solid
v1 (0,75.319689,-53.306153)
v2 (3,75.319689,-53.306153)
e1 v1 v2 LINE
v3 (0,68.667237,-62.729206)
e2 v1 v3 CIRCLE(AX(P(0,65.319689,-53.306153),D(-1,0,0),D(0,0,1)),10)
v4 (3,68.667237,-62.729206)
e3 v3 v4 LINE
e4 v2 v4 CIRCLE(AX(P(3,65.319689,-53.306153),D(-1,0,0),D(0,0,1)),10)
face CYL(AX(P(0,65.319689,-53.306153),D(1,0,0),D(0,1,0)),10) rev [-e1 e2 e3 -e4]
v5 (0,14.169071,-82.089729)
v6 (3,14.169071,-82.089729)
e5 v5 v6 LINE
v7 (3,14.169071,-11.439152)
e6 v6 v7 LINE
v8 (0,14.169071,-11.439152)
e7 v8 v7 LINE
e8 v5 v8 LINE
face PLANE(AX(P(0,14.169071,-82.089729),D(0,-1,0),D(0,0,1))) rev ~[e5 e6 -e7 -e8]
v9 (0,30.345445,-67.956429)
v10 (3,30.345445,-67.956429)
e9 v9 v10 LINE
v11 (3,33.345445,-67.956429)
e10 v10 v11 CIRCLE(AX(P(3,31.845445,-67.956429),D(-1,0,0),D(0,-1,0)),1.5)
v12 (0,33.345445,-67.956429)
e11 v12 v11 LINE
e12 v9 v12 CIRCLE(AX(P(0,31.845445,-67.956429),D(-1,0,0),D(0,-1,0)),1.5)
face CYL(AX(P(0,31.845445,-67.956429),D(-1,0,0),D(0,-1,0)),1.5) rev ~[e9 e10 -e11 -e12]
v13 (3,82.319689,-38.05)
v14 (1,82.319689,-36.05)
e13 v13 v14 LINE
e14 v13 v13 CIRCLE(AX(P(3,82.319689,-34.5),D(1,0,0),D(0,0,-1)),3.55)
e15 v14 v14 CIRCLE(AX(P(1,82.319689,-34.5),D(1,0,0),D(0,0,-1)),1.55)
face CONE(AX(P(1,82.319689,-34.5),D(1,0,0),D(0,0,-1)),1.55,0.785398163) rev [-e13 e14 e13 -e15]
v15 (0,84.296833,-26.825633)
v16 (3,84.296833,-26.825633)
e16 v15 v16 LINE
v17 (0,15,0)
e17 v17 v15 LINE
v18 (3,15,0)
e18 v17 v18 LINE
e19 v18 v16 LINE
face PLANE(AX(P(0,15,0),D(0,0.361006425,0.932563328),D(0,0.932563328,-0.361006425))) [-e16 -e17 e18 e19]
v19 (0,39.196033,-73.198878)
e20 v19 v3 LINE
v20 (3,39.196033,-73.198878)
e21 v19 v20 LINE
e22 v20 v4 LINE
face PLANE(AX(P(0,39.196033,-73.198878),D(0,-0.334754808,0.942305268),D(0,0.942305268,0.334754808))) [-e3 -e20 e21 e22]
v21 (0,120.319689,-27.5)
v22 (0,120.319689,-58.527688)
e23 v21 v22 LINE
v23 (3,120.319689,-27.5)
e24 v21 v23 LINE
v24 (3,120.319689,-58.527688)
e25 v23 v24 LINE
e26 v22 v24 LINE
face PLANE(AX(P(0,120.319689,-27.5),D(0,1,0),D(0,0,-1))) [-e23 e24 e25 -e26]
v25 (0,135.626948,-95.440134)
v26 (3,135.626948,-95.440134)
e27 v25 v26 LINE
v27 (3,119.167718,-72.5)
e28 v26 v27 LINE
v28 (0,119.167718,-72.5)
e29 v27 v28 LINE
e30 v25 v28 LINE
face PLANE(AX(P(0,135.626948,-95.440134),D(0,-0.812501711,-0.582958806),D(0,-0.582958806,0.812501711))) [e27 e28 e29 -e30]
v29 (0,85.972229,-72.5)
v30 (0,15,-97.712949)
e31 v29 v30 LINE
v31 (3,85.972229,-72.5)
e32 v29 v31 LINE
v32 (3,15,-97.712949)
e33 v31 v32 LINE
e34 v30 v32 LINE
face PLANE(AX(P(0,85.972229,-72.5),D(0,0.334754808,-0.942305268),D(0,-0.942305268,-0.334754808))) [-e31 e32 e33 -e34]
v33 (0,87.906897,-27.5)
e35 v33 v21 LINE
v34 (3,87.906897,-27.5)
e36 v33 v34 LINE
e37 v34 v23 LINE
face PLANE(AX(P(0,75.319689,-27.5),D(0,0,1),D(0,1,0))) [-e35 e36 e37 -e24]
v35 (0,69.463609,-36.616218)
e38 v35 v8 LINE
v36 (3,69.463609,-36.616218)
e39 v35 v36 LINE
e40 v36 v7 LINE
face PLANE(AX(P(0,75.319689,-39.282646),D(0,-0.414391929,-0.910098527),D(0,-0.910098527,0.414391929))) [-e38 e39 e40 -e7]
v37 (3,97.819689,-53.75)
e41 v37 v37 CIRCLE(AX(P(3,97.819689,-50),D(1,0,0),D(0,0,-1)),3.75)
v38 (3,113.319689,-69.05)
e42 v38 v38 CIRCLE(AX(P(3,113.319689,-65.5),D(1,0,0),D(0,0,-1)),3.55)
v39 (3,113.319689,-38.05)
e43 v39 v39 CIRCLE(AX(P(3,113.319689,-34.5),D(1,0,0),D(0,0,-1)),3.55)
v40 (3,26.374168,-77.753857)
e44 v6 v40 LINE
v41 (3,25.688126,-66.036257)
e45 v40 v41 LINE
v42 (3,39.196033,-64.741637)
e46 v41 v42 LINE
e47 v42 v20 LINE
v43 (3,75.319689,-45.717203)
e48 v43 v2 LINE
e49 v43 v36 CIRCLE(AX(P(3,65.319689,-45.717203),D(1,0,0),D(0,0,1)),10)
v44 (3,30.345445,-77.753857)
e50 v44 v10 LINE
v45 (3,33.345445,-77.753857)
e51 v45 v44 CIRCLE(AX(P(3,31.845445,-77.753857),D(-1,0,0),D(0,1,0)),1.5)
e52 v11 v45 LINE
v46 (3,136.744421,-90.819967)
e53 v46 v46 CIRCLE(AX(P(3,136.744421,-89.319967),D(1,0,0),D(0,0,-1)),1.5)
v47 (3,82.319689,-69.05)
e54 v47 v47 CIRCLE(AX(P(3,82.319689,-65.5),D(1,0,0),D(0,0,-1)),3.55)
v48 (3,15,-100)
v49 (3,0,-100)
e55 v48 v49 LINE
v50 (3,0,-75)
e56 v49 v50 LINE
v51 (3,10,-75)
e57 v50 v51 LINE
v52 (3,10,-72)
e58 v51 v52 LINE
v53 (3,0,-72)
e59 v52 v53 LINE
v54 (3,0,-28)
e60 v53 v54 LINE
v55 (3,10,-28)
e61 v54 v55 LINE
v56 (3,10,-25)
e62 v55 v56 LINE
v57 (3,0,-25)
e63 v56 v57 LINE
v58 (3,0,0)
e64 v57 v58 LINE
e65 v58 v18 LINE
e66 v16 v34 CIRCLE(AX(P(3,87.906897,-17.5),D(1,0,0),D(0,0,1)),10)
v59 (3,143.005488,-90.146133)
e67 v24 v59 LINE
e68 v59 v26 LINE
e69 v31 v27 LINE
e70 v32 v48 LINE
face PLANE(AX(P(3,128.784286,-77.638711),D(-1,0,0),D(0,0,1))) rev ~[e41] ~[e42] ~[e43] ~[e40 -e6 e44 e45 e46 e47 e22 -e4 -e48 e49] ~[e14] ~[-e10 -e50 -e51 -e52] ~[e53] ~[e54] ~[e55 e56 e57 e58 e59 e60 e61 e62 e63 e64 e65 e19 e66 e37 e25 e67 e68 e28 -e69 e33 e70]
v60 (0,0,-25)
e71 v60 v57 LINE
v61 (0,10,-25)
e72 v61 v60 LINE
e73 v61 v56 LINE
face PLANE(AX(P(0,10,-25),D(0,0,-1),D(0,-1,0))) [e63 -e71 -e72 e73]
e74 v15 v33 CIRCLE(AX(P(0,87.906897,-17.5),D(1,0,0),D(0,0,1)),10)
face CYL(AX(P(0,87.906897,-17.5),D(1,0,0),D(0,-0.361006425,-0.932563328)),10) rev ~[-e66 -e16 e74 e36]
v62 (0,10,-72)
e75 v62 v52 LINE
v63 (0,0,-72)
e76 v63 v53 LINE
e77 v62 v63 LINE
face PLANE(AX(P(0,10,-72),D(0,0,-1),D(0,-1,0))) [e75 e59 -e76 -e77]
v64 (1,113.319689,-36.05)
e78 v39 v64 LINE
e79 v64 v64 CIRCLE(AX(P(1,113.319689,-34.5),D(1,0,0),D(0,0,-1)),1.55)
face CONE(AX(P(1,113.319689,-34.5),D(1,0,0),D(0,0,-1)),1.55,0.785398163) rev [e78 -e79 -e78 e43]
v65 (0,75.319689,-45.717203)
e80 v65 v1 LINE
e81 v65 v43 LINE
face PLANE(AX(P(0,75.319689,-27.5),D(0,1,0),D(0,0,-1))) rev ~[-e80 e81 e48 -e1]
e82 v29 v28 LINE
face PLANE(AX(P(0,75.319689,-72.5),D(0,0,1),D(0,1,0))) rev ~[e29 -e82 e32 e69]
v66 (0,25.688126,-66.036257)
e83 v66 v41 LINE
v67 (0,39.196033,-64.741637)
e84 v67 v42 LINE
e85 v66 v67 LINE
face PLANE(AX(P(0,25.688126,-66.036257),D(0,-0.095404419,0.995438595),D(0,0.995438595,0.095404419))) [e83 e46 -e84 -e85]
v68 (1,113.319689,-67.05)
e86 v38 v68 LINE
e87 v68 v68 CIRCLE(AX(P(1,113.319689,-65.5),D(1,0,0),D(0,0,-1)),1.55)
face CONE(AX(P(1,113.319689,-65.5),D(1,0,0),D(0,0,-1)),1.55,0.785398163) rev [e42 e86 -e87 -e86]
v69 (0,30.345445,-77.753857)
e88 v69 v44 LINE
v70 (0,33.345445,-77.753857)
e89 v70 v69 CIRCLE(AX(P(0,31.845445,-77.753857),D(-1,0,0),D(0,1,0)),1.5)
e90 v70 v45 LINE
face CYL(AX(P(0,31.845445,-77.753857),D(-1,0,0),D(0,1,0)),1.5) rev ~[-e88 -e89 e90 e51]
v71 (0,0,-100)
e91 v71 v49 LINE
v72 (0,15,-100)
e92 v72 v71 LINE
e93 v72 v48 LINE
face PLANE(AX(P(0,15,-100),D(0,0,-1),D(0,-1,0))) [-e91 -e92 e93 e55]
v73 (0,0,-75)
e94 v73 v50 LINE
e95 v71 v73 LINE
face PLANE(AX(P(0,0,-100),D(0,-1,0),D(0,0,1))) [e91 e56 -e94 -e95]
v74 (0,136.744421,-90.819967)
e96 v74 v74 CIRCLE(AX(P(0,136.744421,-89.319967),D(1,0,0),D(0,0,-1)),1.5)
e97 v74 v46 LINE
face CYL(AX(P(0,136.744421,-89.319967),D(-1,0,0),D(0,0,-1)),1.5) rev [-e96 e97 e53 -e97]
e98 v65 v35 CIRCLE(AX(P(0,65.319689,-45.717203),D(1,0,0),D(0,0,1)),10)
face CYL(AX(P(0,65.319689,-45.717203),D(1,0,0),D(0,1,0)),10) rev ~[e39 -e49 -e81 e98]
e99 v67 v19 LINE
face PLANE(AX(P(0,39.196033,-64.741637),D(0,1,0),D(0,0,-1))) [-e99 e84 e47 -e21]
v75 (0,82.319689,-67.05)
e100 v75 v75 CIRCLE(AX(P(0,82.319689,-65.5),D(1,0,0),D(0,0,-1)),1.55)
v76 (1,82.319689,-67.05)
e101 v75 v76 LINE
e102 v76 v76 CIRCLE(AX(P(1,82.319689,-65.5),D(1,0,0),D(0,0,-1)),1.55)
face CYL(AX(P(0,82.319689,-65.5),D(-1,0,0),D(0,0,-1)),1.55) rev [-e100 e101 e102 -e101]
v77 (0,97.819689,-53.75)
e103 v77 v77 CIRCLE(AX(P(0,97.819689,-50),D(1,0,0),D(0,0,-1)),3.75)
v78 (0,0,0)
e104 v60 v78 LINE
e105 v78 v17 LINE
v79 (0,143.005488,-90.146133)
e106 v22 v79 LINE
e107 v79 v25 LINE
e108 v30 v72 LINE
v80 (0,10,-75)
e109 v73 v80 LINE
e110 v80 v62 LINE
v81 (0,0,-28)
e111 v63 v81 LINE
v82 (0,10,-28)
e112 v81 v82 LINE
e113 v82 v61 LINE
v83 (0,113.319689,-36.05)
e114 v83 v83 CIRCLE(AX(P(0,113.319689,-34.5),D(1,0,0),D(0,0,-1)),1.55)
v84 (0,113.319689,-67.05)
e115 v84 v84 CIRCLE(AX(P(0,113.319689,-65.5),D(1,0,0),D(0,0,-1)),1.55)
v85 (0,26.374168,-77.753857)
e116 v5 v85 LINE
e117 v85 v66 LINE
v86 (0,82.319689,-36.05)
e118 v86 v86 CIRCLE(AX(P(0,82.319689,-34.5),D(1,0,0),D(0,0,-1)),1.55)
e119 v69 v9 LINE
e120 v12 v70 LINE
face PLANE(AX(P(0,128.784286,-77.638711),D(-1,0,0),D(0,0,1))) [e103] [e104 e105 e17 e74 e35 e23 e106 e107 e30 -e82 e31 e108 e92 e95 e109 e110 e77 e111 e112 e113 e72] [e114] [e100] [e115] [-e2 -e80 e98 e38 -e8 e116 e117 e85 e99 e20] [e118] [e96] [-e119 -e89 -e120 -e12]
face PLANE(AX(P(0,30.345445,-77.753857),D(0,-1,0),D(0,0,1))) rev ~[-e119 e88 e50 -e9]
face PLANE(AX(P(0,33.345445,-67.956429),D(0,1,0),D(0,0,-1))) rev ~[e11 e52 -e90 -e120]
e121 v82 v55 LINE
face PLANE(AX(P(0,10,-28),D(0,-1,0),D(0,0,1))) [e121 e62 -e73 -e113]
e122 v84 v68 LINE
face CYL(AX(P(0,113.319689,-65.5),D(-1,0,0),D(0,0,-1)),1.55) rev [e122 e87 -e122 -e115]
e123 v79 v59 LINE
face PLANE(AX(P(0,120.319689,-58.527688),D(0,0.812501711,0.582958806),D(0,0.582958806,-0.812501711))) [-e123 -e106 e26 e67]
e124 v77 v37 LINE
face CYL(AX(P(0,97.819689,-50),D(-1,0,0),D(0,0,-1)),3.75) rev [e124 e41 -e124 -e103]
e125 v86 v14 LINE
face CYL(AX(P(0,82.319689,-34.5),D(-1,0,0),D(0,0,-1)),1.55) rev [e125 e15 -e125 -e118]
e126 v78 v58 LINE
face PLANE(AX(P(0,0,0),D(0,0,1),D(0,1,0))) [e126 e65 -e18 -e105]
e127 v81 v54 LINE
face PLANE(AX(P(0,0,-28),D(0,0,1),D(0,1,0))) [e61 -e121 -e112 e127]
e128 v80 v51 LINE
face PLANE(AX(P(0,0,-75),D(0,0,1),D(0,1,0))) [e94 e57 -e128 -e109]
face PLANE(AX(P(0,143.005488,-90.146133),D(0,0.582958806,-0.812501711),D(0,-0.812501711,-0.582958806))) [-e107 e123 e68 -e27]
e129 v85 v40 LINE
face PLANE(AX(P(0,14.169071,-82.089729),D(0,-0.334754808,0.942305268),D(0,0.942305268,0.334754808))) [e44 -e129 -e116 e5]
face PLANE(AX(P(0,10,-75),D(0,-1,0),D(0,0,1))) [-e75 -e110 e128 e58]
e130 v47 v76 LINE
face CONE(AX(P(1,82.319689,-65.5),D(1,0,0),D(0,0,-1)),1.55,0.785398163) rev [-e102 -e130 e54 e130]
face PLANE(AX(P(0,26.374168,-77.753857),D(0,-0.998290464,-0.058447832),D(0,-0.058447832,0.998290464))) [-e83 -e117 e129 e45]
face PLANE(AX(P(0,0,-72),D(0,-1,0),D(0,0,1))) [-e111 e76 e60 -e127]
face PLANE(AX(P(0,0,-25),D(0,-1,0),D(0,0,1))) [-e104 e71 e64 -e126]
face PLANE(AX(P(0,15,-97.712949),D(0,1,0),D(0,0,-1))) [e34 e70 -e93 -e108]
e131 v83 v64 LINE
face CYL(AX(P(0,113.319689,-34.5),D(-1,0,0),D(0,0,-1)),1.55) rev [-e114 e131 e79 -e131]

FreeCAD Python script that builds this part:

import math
import FreeCAD as App
import Part
import Sketcher


def edges_at(feature, points):
    """Names of the edges that pass closest to the given points."""
    edges = feature.Shape.Edges
    near = lambda p: min(range(len(edges)), key=lambda i: edges[i].distToShape(Part.Vertex(*p))[0])
    return sorted({f"Edge{near(p) + 1}" for p in points})


def add_polygon(sketch, points):
    """Adds a closed chain of lines whose ends are joined by coincident constraints."""
    first, n = sketch.GeometryCount, len(points)
    for a, b in zip(points, points[1:] + points[:1]):
        sketch.addGeometry(Part.LineSegment(App.Vector(*a, 0), App.Vector(*b, 0)), False)
    for i in range(n):
        sketch.addConstraint(Sketcher.Constraint("Coincident", first + i, 2, first + (i + 1) % n, 1))

doc = App.newDocument("Part")
params = doc.addObject("Spreadsheet::Sheet", "Params")
for row, (alias, value) in enumerate([
    ("sketch1_diameter", "3 mm"),
    ("sketch1_diameter2", "3.1 mm"),
    ("sketch1_diameter3", "7.5 mm"),
    ("sketch1_width", "15 mm"),
    ("sketch1_width2", "10 mm"),
    ("pad1_length", "3 mm"),
    ("chamfer_size", "2 mm"),
    ("fillet_radius", "10 mm"),
], start=1):
    params.set(f"A{row}", alias)
    params.set(f"B{row}", "=" + value)
    params.setAlias(f"B{row}", alias)

body = doc.addObject("PartDesign::Body", "Body")

sketch1 = doc.addObject("Sketcher::SketchObject", "Sketch")
body.addObject(sketch1)
sketch1.AttachmentSupport = (doc.YZ_Plane, [""])
sketch1.MapMode = "FlatFace"
add_polygon(sketch1, [(15, 0), (0, 0), (0, -25), (10, -25), (10, -28), (0, -28), (0, -72), (10, -72), (10, -75), (0, -75), (0, -100), (15, -100), (15, -97.7), (86, -72.5), (119.2, -72.5), (135.6, -95.4), (143, -90.1), (120.3, -58.5), (120.3, -27.5), (86, -27.5)])
add_polygon(sketch1, [(75.3, -60.4), (39.2, -73.2), (39.2, -64.7), (25.7, -66), (26.4, -77.8), (14.2, -82.1), (14.2, -11.4), (75.3, -39.3)])
sketch1.addGeometry(Part.LineSegment(App.Vector(33.3, -68, 0), App.Vector(33.3, -77.8, 0)), False)
sketch1.addGeometry(Part.ArcOfCircle(Part.Circle(App.Vector(31.8, -77.8, 0), App.Vector(0, 0, 1), 1.5), math.radians(180), math.radians(360)), False)
sketch1.addGeometry(Part.LineSegment(App.Vector(30.3, -77.8, 0), App.Vector(30.3, -68, 0)), False)
sketch1.addGeometry(Part.ArcOfCircle(Part.Circle(App.Vector(31.8, -68, 0), App.Vector(0, 0, 1), 1.5), math.radians(0), math.radians(180)), False)
sketch1.addGeometry(Part.Circle(App.Vector(113.3, -65.5, 0), App.Vector(0, 0, 1), 1.6), False)
sketch1.addGeometry(Part.Circle(App.Vector(97.8, -50, 0), App.Vector(0, 0, 1), 3.8), False)
sketch1.addGeometry(Part.Circle(App.Vector(82.3, -34.5, 0), App.Vector(0, 0, 1), 1.6), False)
sketch1.addGeometry(Part.Circle(App.Vector(82.3, -65.5, 0), App.Vector(0, 0, 1), 1.6), False)
sketch1.addGeometry(Part.Circle(App.Vector(113.3, -34.5, 0), App.Vector(0, 0, 1), 1.6), False)
sketch1.addGeometry(Part.Circle(App.Vector(136.7, -89.3, 0), App.Vector(0, 0, 1), 1.5), False)
sketch1.addConstraint([
    Sketcher.Constraint("Tangent", 28, 2, 29, 2),
    Sketcher.Constraint("Tangent", 29, 1, 30, 1),
    Sketcher.Constraint("Tangent", 30, 2, 31, 2),
    Sketcher.Constraint("Tangent", 31, 1, 28, 1),
    Sketcher.Constraint("Horizontal", 0),
    Sketcher.Constraint("Vertical", 1),
    Sketcher.Constraint("Horizontal", 2),
    Sketcher.Constraint("Vertical", 3),
    Sketcher.Constraint("Horizontal", 4),
    Sketcher.Constraint("Vertical", 5),
    Sketcher.Constraint("Horizontal", 6),
    Sketcher.Constraint("Vertical", 7),
    Sketcher.Constraint("Horizontal", 8),
    Sketcher.Constraint("Vertical", 9),
    Sketcher.Constraint("Horizontal", 10),
    Sketcher.Constraint("Vertical", 11),
    Sketcher.Constraint("Horizontal", 13),
    Sketcher.Constraint("Vertical", 17),
    Sketcher.Constraint("Horizontal", 18),
    Sketcher.Constraint("Vertical", 21),
    Sketcher.Constraint("Vertical", 25),
    Sketcher.Constraint("Vertical", 27),
    Sketcher.Constraint("Vertical", 28),
    Sketcher.Constraint("Vertical", 30),
    Sketcher.Constraint("Coincident", 0, 2, -1, 1),
    Sketcher.Constraint("Equal", 32, 34),
    Sketcher.Constraint("Equal", 34, 35),
    Sketcher.Constraint("Equal", 35, 36),
    Sketcher.Constraint("Equal", 31, 37),
    Sketcher.Constraint("PointOnObject", 4, 2, -2),
    Sketcher.Constraint("PointOnObject", 8, 2, -2),
    Sketcher.Constraint("Perpendicular", 14, 15),
    Sketcher.Constraint("Perpendicular", 15, 16),
    Sketcher.Constraint("Parallel", 12, 20),
    Sketcher.Constraint("Parallel", 20, 24),
    Sketcher.Constraint("Horizontal", 32, 3, 35, 3),
    Sketcher.Constraint("Horizontal", 34, 3, 36, 3),
    Sketcher.Constraint("Horizontal", 29, 3, 23, 2),
    Sketcher.Constraint("Vertical", 34, 3, 35, 3),
    Sketcher.Constraint("Vertical", 32, 3, 36, 3),
    Sketcher.Constraint("Vertical", 3, 2, 6, 2),
    Sketcher.Constraint("Vertical", 11, 2, 19, 2),
    Sketcher.Constraint("Equal", 3, 7),
    Sketcher.Constraint("Equal", 1, 9),
    Sketcher.Constraint("Diameter", 37, 3.0),
    Sketcher.Constraint("Diameter", 32, 3.1),
    Sketcher.Constraint("Diameter", 33, 7.5),
    Sketcher.Constraint("DistanceX", 0, 2, 0, 1, 15.0),
    Sketcher.Constraint("DistanceX", 2, 1, 2, 2, 10.0),
    Sketcher.Constraint("DistanceY", 1, 2, 1, 1, 25.0),
    Sketcher.Constraint("DistanceY", 3, 2, 3, 1, 3.0),
    Sketcher.Constraint("DistanceY", 5, 2, 5, 1, 44.0),
    Sketcher.Constraint("DistanceY", 33, 3, -1, 1, 50.0),
    Sketcher.Constraint("DistanceX", 34, 3, 32, 3, 31.0),
    Sketcher.Constraint("DistanceY", 32, 3, 34, 3, 31.0),
    Sketcher.Constraint("DistanceY", 12, 2, 35, 3, 7.0),
    Sketcher.Constraint("DistanceX", 32, 3, 16, 2, 7.0),
    Sketcher.Constraint("DistanceY", 36, 3, 17, 2, 7.0),
    Sketcher.Constraint("DistanceX", 26, 2, 34, 3, 7.0),
    Sketcher.Constraint("DistanceY", 32, 3, -1, 1, 65.5),
    Sketcher.Constraint("DistanceX", 33, 3, 32, 3, 15.5),
    Sketcher.Constraint("DistanceY", 14, 2, 15, 2, 5.294001),
    Sketcher.Constraint("DistanceX", 13, 1, 13, 2, 33.195489),
    Sketcher.Constraint("DistanceX", 18, 2, 18, 1, 34.280811),
    Sketcher.Constraint("DistanceY", 11, 1, 11, 2, 2.287051),
    Sketcher.Constraint("DistanceY", 17, 1, 17, 2, 31.027688),
    Sketcher.Constraint("DistanceY", 21, 1, 21, 2, 8.45724),
    Sketcher.Constraint("DistanceY", 27, 2, 27, 1, 21.08327),
    Sketcher.Constraint("DistanceY", 28, 2, 28, 1, 9.797428),
    Sketcher.Constraint("DistanceX", 32, 3, 15, 2, 29.685799),
    Sketcher.Constraint("DistanceY", 29, 3, 22, 2, 11.717601),
    Sketcher.Constraint("Distance", 12, 75.317661),
    Sketcher.Constraint("Distance", 14, 28.233951),
    Sketcher.Constraint("Distance", 24, 12.952381),
    Sketcher.Constraint("DistanceY", 25, 1, 25, 2, 70.650577),
    Sketcher.Constraint("DistanceY", 31, 3, -1, 1, 67.956429),
    Sketcher.Constraint("DistanceX", -1, 1, 37, 3, 136.744421),
    Sketcher.Constraint("DistanceX", -1, 1, 24, 2, 14.169071),
    Sketcher.Constraint("DistanceY", 37, 3, 16, 2, 30.792279),
    Sketcher.Constraint("DistanceX", 29, 3, 20, 2, 7.350589),
    Sketcher.Constraint("DistanceY", 29, 3, 20, 2, 4.55498),
    Sketcher.Constraint("DistanceX", 22, 2, 31, 3, 6.157319),
    Sketcher.Constraint("DistanceX", 22, 2, 23, 2, 0.686041),
])
sketch1.setExpression("Constraints[72]", "Params.sketch1_diameter")
sketch1.setExpression("Constraints[73]", "Params.sketch1_diameter2")
sketch1.setExpression("Constraints[74]", "Params.sketch1_diameter3")
sketch1.setExpression("Constraints[75]", "Params.sketch1_width")
sketch1.setExpression("Constraints[76]", "Params.sketch1_width2")
pad1 = doc.addObject("PartDesign::Pad", "Pad")
body.addObject(pad1)
pad1.Profile = sketch1
pad1.setExpression("Length", "Params.pad1_length")
doc.recompute()

chamfer = doc.addObject("PartDesign::Chamfer", "Chamfer")
body.addObject(chamfer)
chamfer.Base = (pad1, edges_at(pad1, [
    (3, 82.32, -32.95),
    (3, 113.32, -32.95),
    (3, 113.32, -63.95),
    (3, 82.32, -63.95),
]))
chamfer.setExpression("Size", "Params.chamfer_size")
doc.recompute()

fillet = doc.addObject("PartDesign::Fillet", "Fillet")
body.addObject(fillet)
fillet.Base = (chamfer, edges_at(chamfer, [(1.5, 86.039, -27.5), (1.5, 75.32, -60.366), (1.5, 75.32, -39.283)]))
fillet.setExpression("Radius", "Params.fillet_radius")

doc.recompute()
